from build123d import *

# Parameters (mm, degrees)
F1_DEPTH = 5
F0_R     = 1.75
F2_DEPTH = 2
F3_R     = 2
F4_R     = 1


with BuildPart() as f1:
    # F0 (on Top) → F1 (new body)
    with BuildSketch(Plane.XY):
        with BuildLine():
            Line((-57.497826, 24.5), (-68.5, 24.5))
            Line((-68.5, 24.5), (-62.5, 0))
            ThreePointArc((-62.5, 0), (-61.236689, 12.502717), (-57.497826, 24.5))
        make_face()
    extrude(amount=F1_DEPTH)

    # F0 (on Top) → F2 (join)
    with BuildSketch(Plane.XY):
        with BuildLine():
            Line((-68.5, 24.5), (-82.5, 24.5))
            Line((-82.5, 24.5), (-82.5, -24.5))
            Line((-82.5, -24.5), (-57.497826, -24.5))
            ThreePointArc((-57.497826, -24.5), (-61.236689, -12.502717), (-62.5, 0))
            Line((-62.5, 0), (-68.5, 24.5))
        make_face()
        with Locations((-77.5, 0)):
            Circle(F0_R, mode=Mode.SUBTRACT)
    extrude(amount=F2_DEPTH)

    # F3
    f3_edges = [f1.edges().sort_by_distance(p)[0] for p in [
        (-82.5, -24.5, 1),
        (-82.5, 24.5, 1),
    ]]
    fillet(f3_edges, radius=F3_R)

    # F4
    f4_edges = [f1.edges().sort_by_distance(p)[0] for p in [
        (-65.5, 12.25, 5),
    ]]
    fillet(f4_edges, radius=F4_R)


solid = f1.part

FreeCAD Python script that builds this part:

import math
import FreeCAD as App
import Part
import Sketcher
from FreeCAD import Vector
Q = App.Units.Quantity


def edges_at(feature, points):
    """Names of the edges that pass closest to the given points."""
    edges = feature.Shape.Edges
    near = lambda p: min(range(len(edges)), key=lambda i: edges[i].distToShape(Part.Vertex(*p))[0])
    return sorted({f"Edge{near(p) + 1}" for p in points})

doc = App.newDocument("Part")
body = doc.addObject("PartDesign::Body", "Body")

sketch1 = body.newObject("Sketcher::SketchObject", "Sketch")
sketch1.AttachmentSupport = (doc.getObject("XY_Plane"), [""])
sketch1.MapMode = "FlatFace"
sketch1.addGeometry([
    Part.LineSegment(Vector(-57, 24, 0), Vector(-68, 24, 0)),
    Part.LineSegment(Vector(-68, 24, 0), Vector(-62, 0, 0)),
    Part.ArcOfCircle(Part.Circle(Vector(0, 0, 0), Vector(0, 0, 1), 62), math.radians(157), math.radians(180)),
], False)
sketch1.addConstraint([
    Sketcher.Constraint("Coincident", 0, 2, 1, 1),
    Sketcher.Constraint("Coincident", 1, 2, 2, 2),
    Sketcher.Constraint("Coincident", 2, 1, 0, 1),
    Sketcher.Constraint("Horizontal", 0),
    Sketcher.Constraint("Coincident", 2, 3, -1, 1),
    Sketcher.Constraint("PointOnObject", 1, 2, -1),
    Sketcher.Constraint("DistanceX", 0, 2, 1, 2, Q("6 mm")),
    Sketcher.Constraint("DistanceX", 0, 2, -1, 1, Q("68.5 mm")),
    Sketcher.Constraint("DistanceY", -1, 1, 0, 2, Q("24.5 mm")),
])
pad1 = body.newObject("PartDesign::Pad", "Pad")
pad1.Profile = sketch1
pad1.Length = 5

sketch2 = body.newObject("Sketcher::SketchObject", "Sketch001")
sketch2.AttachmentSupport = (doc.getObject("XY_Plane"), [""])
sketch2.MapMode = "FlatFace"
sketch2.addGeometry([
    Part.LineSegment(Vector(-68.5, 24.5, 0), Vector(-82.5, 24.5, 0)),
    Part.LineSegment(Vector(-82.5, 24.5, 0), Vector(-82.5, -24.5, 0)),
    Part.LineSegment(Vector(-82.5, -24.5, 0), Vector(-57.5, -24.5, 0)),
    Part.ArcOfCircle(Part.Circle(Vector(0, 0, 0), Vector(0, 0, 1), 62.5), math.radians(180), math.radians(203)),
    Part.LineSegment(Vector(-62.5, 0, 0), Vector(-68.5, 24.5, 0)),
    Part.Circle(Vector(-77.5, 0, 0), Vector(0, 0, 1), 1.8),
], False)
sketch2.addConstraint([
    Sketcher.Constraint("Coincident", 0, 2, 1, 1),
    Sketcher.Constraint("Coincident", 1, 2, 2, 1),
    Sketcher.Constraint("Coincident", 2, 2, 3, 2),
    Sketcher.Constraint("Coincident", 3, 1, 4, 1),
    Sketcher.Constraint("Coincident", 4, 2, 0, 1),
    Sketcher.Constraint("Horizontal", 0),
    Sketcher.Constraint("Vertical", 1),
    Sketcher.Constraint("Horizontal", 2),
    Sketcher.Constraint("Coincident", 3, 3, -1, 1),
    Sketcher.Constraint("PointOnObject", 5, 3, -1),
    Sketcher.Constraint("PointOnObject", 3, 1, -1),
    Sketcher.Constraint("Diameter", 5, Q("3.5 mm")),
    Sketcher.Constraint("DistanceX", 0, 2, 0, 1, Q("14 mm")),
    Sketcher.Constraint("DistanceY", 1, 2, 1, 1, Q("49 mm")),
    Sketcher.Constraint("DistanceX", 0, 2, 5, 3, Q("5 mm")),
    Sketcher.Constraint("DistanceX", 5, 3, 3, 1, Q("15 mm")),
    Sketcher.Constraint("DistanceX", 5, 3, -1, 1, Q("77.5 mm")),
    Sketcher.Constraint("DistanceY", -1, 1, 0, 2, Q("24.5 mm")),
])
pad2 = body.newObject("PartDesign::Pad", "Pad001")
pad2.Profile = sketch2
pad2.Length = 2
doc.recompute()

fillet = body.newObject("PartDesign::Fillet", "Fillet")
fillet.Base = (pad2, edges_at(pad2, [(-82.5, -24.5, 1), (-82.5, 24.5, 1)]))
fillet.Radius = 2
doc.recompute()

fillet2 = body.newObject("PartDesign::Fillet", "Fillet001")
fillet2.Base = (fillet, edges_at(fillet, [(-65.5, 12.25, 5)]))
fillet2.Radius = 1

doc.recompute()
